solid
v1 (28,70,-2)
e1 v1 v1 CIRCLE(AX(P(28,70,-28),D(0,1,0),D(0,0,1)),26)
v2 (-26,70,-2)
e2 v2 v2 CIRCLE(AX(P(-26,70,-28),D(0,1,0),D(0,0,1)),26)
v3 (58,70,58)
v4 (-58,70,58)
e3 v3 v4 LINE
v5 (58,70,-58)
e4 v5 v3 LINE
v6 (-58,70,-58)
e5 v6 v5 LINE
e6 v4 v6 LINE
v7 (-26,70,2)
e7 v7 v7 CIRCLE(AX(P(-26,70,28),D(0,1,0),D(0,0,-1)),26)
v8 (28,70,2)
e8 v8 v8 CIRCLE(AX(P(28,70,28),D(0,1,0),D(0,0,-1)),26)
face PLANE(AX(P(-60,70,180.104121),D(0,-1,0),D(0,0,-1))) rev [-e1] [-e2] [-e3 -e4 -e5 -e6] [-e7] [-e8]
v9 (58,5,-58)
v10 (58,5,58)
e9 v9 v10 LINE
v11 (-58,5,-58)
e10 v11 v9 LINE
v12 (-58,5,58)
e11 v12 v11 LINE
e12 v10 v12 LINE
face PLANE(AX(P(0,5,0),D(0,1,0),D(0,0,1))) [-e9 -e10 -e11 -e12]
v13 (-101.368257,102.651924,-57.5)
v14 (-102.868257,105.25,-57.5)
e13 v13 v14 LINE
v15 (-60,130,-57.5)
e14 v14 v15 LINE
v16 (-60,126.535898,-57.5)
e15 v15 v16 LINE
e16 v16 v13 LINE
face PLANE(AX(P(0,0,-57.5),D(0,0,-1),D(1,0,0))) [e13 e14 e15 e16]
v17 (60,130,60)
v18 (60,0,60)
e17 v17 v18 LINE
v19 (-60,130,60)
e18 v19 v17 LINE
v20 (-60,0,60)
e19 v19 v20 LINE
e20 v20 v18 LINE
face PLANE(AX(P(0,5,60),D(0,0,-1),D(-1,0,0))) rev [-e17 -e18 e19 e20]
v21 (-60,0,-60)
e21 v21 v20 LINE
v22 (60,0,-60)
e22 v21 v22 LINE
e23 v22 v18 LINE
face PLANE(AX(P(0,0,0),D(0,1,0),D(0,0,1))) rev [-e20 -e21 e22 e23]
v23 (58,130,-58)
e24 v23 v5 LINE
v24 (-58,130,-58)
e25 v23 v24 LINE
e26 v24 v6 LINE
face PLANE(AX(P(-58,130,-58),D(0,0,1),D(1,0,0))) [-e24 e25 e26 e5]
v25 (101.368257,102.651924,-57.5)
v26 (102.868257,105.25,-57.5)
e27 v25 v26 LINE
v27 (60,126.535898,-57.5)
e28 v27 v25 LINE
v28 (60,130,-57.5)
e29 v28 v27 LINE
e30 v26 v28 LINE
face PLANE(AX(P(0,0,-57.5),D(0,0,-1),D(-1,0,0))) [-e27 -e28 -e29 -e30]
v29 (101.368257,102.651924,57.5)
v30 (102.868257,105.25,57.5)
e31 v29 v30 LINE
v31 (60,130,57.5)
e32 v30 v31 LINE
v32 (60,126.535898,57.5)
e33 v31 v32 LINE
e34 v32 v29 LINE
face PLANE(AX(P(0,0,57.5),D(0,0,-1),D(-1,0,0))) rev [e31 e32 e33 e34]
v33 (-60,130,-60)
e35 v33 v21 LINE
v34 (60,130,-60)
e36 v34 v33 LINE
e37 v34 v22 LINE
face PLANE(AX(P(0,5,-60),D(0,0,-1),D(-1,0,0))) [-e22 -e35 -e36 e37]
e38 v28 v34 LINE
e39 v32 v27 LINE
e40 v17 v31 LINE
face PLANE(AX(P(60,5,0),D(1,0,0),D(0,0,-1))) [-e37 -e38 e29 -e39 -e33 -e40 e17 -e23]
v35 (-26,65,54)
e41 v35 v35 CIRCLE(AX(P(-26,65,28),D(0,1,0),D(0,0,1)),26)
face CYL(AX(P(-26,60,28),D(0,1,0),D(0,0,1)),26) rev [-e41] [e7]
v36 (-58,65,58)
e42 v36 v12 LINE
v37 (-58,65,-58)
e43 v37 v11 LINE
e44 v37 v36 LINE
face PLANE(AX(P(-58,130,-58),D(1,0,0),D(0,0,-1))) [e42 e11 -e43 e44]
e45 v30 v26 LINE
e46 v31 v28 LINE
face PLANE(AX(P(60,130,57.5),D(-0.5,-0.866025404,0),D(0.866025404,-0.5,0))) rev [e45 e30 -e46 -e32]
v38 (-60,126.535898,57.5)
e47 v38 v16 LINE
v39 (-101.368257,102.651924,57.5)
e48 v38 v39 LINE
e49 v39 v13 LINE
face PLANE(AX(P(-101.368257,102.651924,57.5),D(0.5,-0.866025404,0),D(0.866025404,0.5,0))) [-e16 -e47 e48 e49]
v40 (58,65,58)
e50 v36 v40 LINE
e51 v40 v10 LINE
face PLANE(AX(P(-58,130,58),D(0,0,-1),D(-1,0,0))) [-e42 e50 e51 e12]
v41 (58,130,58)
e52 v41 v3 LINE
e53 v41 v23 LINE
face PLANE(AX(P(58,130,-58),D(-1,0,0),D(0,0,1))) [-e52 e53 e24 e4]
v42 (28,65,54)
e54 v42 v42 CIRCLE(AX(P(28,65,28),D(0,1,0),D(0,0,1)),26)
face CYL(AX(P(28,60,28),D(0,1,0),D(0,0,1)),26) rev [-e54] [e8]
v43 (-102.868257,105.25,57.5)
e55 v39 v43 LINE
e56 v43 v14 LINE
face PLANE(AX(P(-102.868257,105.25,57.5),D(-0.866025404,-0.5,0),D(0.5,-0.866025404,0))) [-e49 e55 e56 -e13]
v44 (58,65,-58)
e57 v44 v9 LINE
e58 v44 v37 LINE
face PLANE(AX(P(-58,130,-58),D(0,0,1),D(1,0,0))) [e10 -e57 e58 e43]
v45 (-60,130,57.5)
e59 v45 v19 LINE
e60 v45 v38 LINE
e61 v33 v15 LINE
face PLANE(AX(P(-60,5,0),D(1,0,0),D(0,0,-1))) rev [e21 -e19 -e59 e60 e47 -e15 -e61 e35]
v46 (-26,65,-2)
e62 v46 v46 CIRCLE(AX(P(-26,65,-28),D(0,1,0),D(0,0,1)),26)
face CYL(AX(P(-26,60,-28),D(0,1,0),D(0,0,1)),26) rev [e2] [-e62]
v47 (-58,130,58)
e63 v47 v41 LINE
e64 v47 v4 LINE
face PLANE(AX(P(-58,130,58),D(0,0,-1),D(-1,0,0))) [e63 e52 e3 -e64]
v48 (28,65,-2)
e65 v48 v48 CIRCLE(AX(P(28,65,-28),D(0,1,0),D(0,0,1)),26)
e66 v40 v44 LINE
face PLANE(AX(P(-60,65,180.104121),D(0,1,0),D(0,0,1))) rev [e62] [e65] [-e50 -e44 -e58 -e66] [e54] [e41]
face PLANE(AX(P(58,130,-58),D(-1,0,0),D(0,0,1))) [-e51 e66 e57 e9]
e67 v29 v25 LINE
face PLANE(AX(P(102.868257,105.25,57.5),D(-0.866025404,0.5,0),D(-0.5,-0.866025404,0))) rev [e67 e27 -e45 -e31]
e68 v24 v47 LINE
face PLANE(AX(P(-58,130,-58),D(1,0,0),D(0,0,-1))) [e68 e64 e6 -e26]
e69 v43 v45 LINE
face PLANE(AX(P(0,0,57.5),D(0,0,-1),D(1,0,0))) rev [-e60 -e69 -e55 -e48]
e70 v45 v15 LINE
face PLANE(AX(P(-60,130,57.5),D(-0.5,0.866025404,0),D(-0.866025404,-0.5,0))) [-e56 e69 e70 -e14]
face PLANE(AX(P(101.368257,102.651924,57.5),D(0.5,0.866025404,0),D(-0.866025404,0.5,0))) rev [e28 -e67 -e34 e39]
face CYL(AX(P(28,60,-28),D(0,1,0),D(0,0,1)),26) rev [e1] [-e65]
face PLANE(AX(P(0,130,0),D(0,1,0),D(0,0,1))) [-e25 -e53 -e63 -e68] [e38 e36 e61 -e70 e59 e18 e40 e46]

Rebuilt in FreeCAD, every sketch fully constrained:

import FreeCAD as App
import Part
import Sketcher
Q = App.Units.Quantity

doc = App.newDocument("Part")
body = doc.addObject("PartDesign::Body", "Body")

# Sketch on XZ plane
sketch1 = body.newObject("Sketcher::SketchObject", "Sketch")
sketch1.AttachmentSupport = (doc.getObject("XZ_Plane"), [""])
sketch1.MapMode = "FlatFace"
sketch1.addGeometry(Part.LineSegment(App.Vector(-60, -60, 0), App.Vector(-60, 60, 0)), False)
sketch1.addGeometry(Part.LineSegment(App.Vector(-60, 60, 0), App.Vector(60, 60, 0)), False)
sketch1.addGeometry(Part.LineSegment(App.Vector(60, 60, 0), App.Vector(60, -60, 0)), False)
sketch1.addGeometry(Part.LineSegment(App.Vector(60, -60, 0), App.Vector(-60, -60, 0)), False)
sketch1.addConstraint(Sketcher.Constraint("Coincident", 0, 2, 1, 1))
sketch1.addConstraint(Sketcher.Constraint("Coincident", 1, 2, 2, 1))
sketch1.addConstraint(Sketcher.Constraint("Coincident", 2, 2, 3, 1))
sketch1.addConstraint(Sketcher.Constraint("Coincident", 3, 2, 0, 1))
sketch1.addConstraint(Sketcher.Constraint("Vertical", 0))
sketch1.addConstraint(Sketcher.Constraint("Horizontal", 1))
sketch1.addConstraint(Sketcher.Constraint("Vertical", 2))
sketch1.addConstraint(Sketcher.Constraint("Horizontal", 3))
sketch1.addConstraint(Sketcher.Constraint("Symmetric", 0, 2, 2, 2, -1, 1))
sketch1.addConstraint(Sketcher.Constraint("Equal", 3, 0))
sketch1.addConstraint(Sketcher.Constraint("DistanceX", 1, 1, 1, 2, 120.0))
pad1 = body.newObject("PartDesign::Pad", "Pad")
pad1.Profile = sketch1
pad1.Length = 5
pad1.Reversed = True

# Sketch on XZ plane
sketch2 = body.newObject("Sketcher::SketchObject", "Sketch001")
sketch2.AttachmentSupport = (doc.getObject("XZ_Plane"), [""])
sketch2.MapMode = "FlatFace"
sketch2.addGeometry(Part.LineSegment(App.Vector(-60, -60, 0), App.Vector(-60, 60, 0)), False)
sketch2.addGeometry(Part.LineSegment(App.Vector(-60, 60, 0), App.Vector(60, 60, 0)), False)
sketch2.addGeometry(Part.LineSegment(App.Vector(60, 60, 0), App.Vector(60, -60, 0)), False)
sketch2.addGeometry(Part.LineSegment(App.Vector(60, -60, 0), App.Vector(-60, -60, 0)), False)
sketch2.addGeometry(Part.LineSegment(App.Vector(58, 58, 0), App.Vector(-58, 58, 0)), False)
sketch2.addGeometry(Part.LineSegment(App.Vector(-58, 58, 0), App.Vector(-58, -58, 0)), False)
sketch2.addGeometry(Part.LineSegment(App.Vector(-58, -58, 0), App.Vector(58, -58, 0)), False)
sketch2.addGeometry(Part.LineSegment(App.Vector(58, -58, 0), App.Vector(58, 58, 0)), False)
sketch2.addConstraint(Sketcher.Constraint("Coincident", 0, 2, 1, 1))
sketch2.addConstraint(Sketcher.Constraint("Coincident", 1, 2, 2, 1))
sketch2.addConstraint(Sketcher.Constraint("Coincident", 2, 2, 3, 1))
sketch2.addConstraint(Sketcher.Constraint("Coincident", 3, 2, 0, 1))
sketch2.addConstraint(Sketcher.Constraint("Coincident", 4, 2, 5, 1))
sketch2.addConstraint(Sketcher.Constraint("Coincident", 5, 2, 6, 1))
sketch2.addConstraint(Sketcher.Constraint("Coincident", 6, 2, 7, 1))
sketch2.addConstraint(Sketcher.Constraint("Coincident", 7, 2, 4, 1))
sketch2.addConstraint(Sketcher.Constraint("Vertical", 0))
sketch2.addConstraint(Sketcher.Constraint("Horizontal", 1))
sketch2.addConstraint(Sketcher.Constraint("Vertical", 2))
sketch2.addConstraint(Sketcher.Constraint("Horizontal", 3))
sketch2.addConstraint(Sketcher.Constraint("Horizontal", 4))
sketch2.addConstraint(Sketcher.Constraint("Vertical", 5))
sketch2.addConstraint(Sketcher.Constraint("Horizontal", 6))
sketch2.addConstraint(Sketcher.Constraint("Vertical", 7))
sketch2.addConstraint(Sketcher.Constraint("Symmetric", 0, 2, 2, 2, -1, 1))
sketch2.addConstraint(Sketcher.Constraint("Symmetric", 4, 2, 6, 2, -1, 1))
sketch2.addConstraint(Sketcher.Constraint("Equal", 3, 0))
sketch2.addConstraint(Sketcher.Constraint("Equal", 6, 5))
sketch2.addConstraint(Sketcher.Constraint("DistanceX", 1, 1, 1, 2, 120.0))
sketch2.addConstraint(Sketcher.Constraint("DistanceX", 4, 2, 4, 1, 116.0))
pad2 = body.newObject("PartDesign::Pad", "Pad001")
pad2.Profile = sketch2
pad2.Length = 130
pad2.Reversed = True

# Sketch on XY plane
sketch3 = body.newObject("Sketcher::SketchObject", "Sketch002")
sketch3.AttachmentSupport = (doc.getObject("XY_Plane"), [""])
sketch3.MapMode = "FlatFace"
sketch3.addGeometry(Part.LineSegment(App.Vector(102.9, 105.2, 0), App.Vector(60, 130, 0)), False)
sketch3.addGeometry(Part.LineSegment(App.Vector(60, 130, 0), App.Vector(60, 126.5, 0)), False)
sketch3.addGeometry(Part.LineSegment(App.Vector(60, 126.5, 0), App.Vector(101.4, 102.7, 0)), False)
sketch3.addGeometry(Part.LineSegment(App.Vector(101.4, 102.7, 0), App.Vector(102.9, 105.2, 0)), False)
sketch3.addConstraint(Sketcher.Constraint("Coincident", 0, 2, 1, 1))
sketch3.addConstraint(Sketcher.Constraint("Coincident", 1, 2, 2, 1))
sketch3.addConstraint(Sketcher.Constraint("Coincident", 2, 2, 3, 1))
sketch3.addConstraint(Sketcher.Constraint("Coincident", 3, 2, 0, 1))
sketch3.addConstraint(Sketcher.Constraint("Vertical", 1))
sketch3.addConstraint(Sketcher.Constraint("Parallel", 0, 2))
sketch3.addConstraint(Sketcher.Constraint("Perpendicular", 2, 3))
sketch3.addConstraint(Sketcher.Constraint("Angle", 0, Q("150 deg")))
sketch3.addConstraint(Sketcher.Constraint("Distance", 3, 3.0))
sketch3.addConstraint(Sketcher.Constraint("DistanceX", -1, 1, 0, 2, 60.0))
sketch3.addConstraint(Sketcher.Constraint("DistanceY", -1, 1, 0, 2, 130.0))
sketch3.addConstraint(Sketcher.Constraint("Distance", 0, 49.5))
pad3 = body.newObject("PartDesign::Pad", "Pad002")
pad3.Profile = sketch3
pad3.Length = 115
pad3.Midplane = True
doc.recompute()

mirrored = body.newObject("PartDesign::Mirrored", "Mirrored")
mirrored.Originals = [pad3]
mirrored.MirrorPlane = (doc.getObject("YZ_Plane"), [""])
body.Tip = mirrored

# Sketch on XY plane
sketch4 = body.newObject("Sketcher::SketchObject", "Sketch003")
sketch4.AttachmentSupport = (doc.getObject("XY_Plane"), [""])
sketch4.MapMode = "FlatFace"
sketch4.AttachmentOffset = App.Placement(App.Vector(0, 0, -58), App.Rotation())
sketch4.addGeometry(Part.LineSegment(App.Vector(-60, 70, 0), App.Vector(-60, 65, 0)), False)
sketch4.addGeometry(Part.LineSegment(App.Vector(-60, 65, 0), App.Vector(60, 65, 0)), False)
sketch4.addGeometry(Part.LineSegment(App.Vector(60, 65, 0), App.Vector(60, 70, 0)), False)
sketch4.addGeometry(Part.LineSegment(App.Vector(60, 70, 0), App.Vector(-60, 70, 0)), False)
sketch4.addConstraint(Sketcher.Constraint("Coincident", 0, 2, 1, 1))
sketch4.addConstraint(Sketcher.Constraint("Coincident", 1, 2, 2, 1))
sketch4.addConstraint(Sketcher.Constraint("Coincident", 2, 2, 3, 1))
sketch4.addConstraint(Sketcher.Constraint("Coincident", 3, 2, 0, 1))
sketch4.addConstraint(Sketcher.Constraint("Vertical", 0))
sketch4.addConstraint(Sketcher.Constraint("Horizontal", 1))
sketch4.addConstraint(Sketcher.Constraint("Vertical", 2))
sketch4.addConstraint(Sketcher.Constraint("Horizontal", 3))
sketch4.addConstraint(Sketcher.Constraint("DistanceX", 1, 1, 1, 2, 120.0))
sketch4.addConstraint(Sketcher.Constraint("DistanceY", 0, 2, 0, 1, 5.0))
sketch4.addConstraint(Sketcher.Constraint("DistanceX", 0, 2, -1, 1, 60.0))
sketch4.addConstraint(Sketcher.Constraint("DistanceY", -1, 1, 0, 2, 65.0))
pad4 = body.newObject("PartDesign::Pad", "Pad003")
pad4.Profile = sketch4
pad4.Length = 118

# Sketch on XZ plane
sketch5 = body.newObject("Sketcher::SketchObject", "Sketch004")
sketch5.AttachmentSupport = (doc.getObject("XZ_Plane"), [""])
sketch5.MapMode = "FlatFace"
sketch5.AttachmentOffset = App.Placement(App.Vector(0, 0, -70), App.Rotation())
sketch5.addGeometry(Part.Circle(App.Vector(28, -28, 0), App.Vector(0, 0, 1), 26), False)
sketch5.addGeometry(Part.Circle(App.Vector(-26, -28, 0), App.Vector(0, 0, 1), 26), False)
sketch5.addGeometry(Part.Circle(App.Vector(28, 28, 0), App.Vector(0, 0, 1), 26), False)
sketch5.addGeometry(Part.Circle(App.Vector(-26, 28, 0), App.Vector(0, 0, 1), 26), False)
sketch5.addConstraint(Sketcher.Constraint("Equal", 0, 1))
sketch5.addConstraint(Sketcher.Constraint("Equal", 1, 2))
sketch5.addConstraint(Sketcher.Constraint("Equal", 2, 3))
sketch5.addConstraint(Sketcher.Constraint("Symmetric", 0, 3, 2, 3, -1))
sketch5.addConstraint(Sketcher.Constraint("Symmetric", 1, 3, 3, 3, -1))
sketch5.addConstraint(Sketcher.Constraint("Horizontal", 0, 3, 1, 3))
sketch5.addConstraint(Sketcher.Constraint("Diameter", 0, 52.0))
sketch5.addConstraint(Sketcher.Constraint("DistanceX", -1, 1, 0, 3, 28.0))
sketch5.addConstraint(Sketcher.Constraint("DistanceY", 0, 3, -1, 1, 28.0))
sketch5.addConstraint(Sketcher.Constraint("DistanceX", 1, 3, -1, 1, 26.0))
pocket1 = body.newObject("PartDesign::Pocket", "Pocket")
pocket1.Profile = sketch5
pocket1.Length = 10
pocket1.Reversed = True

doc.recompute()
